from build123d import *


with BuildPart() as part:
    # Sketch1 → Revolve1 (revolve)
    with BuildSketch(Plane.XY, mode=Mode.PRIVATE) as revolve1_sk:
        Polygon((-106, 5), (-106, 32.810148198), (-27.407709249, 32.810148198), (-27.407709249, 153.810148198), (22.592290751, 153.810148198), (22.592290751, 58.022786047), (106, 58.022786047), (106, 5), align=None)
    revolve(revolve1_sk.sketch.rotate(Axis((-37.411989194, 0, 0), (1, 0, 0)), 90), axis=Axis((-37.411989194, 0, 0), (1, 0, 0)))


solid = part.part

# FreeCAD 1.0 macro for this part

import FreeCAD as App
import Part
import Sketcher

V = App.Vector

doc = App.newDocument("Part")
params = doc.addObject("Spreadsheet::Sheet", "Params")
for row, (alias, value) in enumerate([
    ("sketch1_width", "212 mm"),
    ("sketch1_width2", "50 mm"),
    ("sketch1_height", "121 mm"),
    ("revolution_angle", "360 deg"),
], start=1):
    params.set(f"A{row}", alias)
    params.set(f"B{row}", "=" + value)
    params.setAlias(f"B{row}", alias)

body = doc.addObject("PartDesign::Body", "Body")

sketch1 = body.newObject("Sketcher::SketchObject", "Sketch")
sketch1.AttachmentSupport = (doc.getObject("XY_Plane"), [""])
sketch1.MapMode = "FlatFace"
sketch1.addGeometry([
    Part.LineSegment(V(-106, 33, 0), V(-106, 5, 0)),
    Part.LineSegment(V(-106, 5, 0), V(106, 5, 0)),
    Part.LineSegment(V(106, 5, 0), V(106, 58, 0)),
    Part.LineSegment(V(106, 58, 0), V(23, 58, 0)),
    Part.LineSegment(V(23, 58, 0), V(23, 154, 0)),
    Part.LineSegment(V(23, 154, 0), V(-27, 154, 0)),
    Part.LineSegment(V(-27, 154, 0), V(-27, 33, 0)),
    Part.LineSegment(V(-27, 33, 0), V(-106, 33, 0)),
], False)
sketch1.addConstraint([
    Sketcher.Constraint("Coincident", 0, 2, 1, 1),
    Sketcher.Constraint("Coincident", 1, 2, 2, 1),
    Sketcher.Constraint("Coincident", 2, 2, 3, 1),
    Sketcher.Constraint("Coincident", 3, 2, 4, 1),
    Sketcher.Constraint("Coincident", 4, 2, 5, 1),
    Sketcher.Constraint("Coincident", 5, 2, 6, 1),
    Sketcher.Constraint("Coincident", 6, 2, 7, 1),
    Sketcher.Constraint("Coincident", 7, 2, 0, 1),
    Sketcher.Constraint("Vertical", 0),
    Sketcher.Constraint("Horizontal", 1),
    Sketcher.Constraint("Vertical", 2),
    Sketcher.Constraint("Horizontal", 3),
    Sketcher.Constraint("Vertical", 4),
    Sketcher.Constraint("Horizontal", 5),
    Sketcher.Constraint("Vertical", 6),
    Sketcher.Constraint("Horizontal", 7),
    Sketcher.Constraint("DistanceX", 1, 1, 1, 2, 212.0),
    Sketcher.Constraint("DistanceX", 5, 2, 5, 1, 50.0),
    Sketcher.Constraint("DistanceY", 6, 2, 6, 1, 121.0),
    Sketcher.Constraint("DistanceX", 0, 2, -1, 1, 106.0),
    Sketcher.Constraint("DistanceY", -1, 1, 0, 2, 5.0),
    Sketcher.Constraint("DistanceX", 3, 2, 3, 1, 83.407709),
    Sketcher.Constraint("DistanceY", 0, 2, 0, 1, 27.810148),
    Sketcher.Constraint("DistanceY", 2, 1, 2, 2, 53.022786),
])
sketch1.setExpression("Constraints[16]", "Params.sketch1_width")
sketch1.setExpression("Constraints[17]", "Params.sketch1_width2")
sketch1.setExpression("Constraints[18]", "Params.sketch1_height")
revolution = body.newObject("PartDesign::Revolution", "Revolution")
revolution.Profile = sketch1
revolution.ReferenceAxis = (sketch1, ["H_Axis"])
revolution.setExpression("Angle", "Params.revolution_angle")

doc.recompute()
